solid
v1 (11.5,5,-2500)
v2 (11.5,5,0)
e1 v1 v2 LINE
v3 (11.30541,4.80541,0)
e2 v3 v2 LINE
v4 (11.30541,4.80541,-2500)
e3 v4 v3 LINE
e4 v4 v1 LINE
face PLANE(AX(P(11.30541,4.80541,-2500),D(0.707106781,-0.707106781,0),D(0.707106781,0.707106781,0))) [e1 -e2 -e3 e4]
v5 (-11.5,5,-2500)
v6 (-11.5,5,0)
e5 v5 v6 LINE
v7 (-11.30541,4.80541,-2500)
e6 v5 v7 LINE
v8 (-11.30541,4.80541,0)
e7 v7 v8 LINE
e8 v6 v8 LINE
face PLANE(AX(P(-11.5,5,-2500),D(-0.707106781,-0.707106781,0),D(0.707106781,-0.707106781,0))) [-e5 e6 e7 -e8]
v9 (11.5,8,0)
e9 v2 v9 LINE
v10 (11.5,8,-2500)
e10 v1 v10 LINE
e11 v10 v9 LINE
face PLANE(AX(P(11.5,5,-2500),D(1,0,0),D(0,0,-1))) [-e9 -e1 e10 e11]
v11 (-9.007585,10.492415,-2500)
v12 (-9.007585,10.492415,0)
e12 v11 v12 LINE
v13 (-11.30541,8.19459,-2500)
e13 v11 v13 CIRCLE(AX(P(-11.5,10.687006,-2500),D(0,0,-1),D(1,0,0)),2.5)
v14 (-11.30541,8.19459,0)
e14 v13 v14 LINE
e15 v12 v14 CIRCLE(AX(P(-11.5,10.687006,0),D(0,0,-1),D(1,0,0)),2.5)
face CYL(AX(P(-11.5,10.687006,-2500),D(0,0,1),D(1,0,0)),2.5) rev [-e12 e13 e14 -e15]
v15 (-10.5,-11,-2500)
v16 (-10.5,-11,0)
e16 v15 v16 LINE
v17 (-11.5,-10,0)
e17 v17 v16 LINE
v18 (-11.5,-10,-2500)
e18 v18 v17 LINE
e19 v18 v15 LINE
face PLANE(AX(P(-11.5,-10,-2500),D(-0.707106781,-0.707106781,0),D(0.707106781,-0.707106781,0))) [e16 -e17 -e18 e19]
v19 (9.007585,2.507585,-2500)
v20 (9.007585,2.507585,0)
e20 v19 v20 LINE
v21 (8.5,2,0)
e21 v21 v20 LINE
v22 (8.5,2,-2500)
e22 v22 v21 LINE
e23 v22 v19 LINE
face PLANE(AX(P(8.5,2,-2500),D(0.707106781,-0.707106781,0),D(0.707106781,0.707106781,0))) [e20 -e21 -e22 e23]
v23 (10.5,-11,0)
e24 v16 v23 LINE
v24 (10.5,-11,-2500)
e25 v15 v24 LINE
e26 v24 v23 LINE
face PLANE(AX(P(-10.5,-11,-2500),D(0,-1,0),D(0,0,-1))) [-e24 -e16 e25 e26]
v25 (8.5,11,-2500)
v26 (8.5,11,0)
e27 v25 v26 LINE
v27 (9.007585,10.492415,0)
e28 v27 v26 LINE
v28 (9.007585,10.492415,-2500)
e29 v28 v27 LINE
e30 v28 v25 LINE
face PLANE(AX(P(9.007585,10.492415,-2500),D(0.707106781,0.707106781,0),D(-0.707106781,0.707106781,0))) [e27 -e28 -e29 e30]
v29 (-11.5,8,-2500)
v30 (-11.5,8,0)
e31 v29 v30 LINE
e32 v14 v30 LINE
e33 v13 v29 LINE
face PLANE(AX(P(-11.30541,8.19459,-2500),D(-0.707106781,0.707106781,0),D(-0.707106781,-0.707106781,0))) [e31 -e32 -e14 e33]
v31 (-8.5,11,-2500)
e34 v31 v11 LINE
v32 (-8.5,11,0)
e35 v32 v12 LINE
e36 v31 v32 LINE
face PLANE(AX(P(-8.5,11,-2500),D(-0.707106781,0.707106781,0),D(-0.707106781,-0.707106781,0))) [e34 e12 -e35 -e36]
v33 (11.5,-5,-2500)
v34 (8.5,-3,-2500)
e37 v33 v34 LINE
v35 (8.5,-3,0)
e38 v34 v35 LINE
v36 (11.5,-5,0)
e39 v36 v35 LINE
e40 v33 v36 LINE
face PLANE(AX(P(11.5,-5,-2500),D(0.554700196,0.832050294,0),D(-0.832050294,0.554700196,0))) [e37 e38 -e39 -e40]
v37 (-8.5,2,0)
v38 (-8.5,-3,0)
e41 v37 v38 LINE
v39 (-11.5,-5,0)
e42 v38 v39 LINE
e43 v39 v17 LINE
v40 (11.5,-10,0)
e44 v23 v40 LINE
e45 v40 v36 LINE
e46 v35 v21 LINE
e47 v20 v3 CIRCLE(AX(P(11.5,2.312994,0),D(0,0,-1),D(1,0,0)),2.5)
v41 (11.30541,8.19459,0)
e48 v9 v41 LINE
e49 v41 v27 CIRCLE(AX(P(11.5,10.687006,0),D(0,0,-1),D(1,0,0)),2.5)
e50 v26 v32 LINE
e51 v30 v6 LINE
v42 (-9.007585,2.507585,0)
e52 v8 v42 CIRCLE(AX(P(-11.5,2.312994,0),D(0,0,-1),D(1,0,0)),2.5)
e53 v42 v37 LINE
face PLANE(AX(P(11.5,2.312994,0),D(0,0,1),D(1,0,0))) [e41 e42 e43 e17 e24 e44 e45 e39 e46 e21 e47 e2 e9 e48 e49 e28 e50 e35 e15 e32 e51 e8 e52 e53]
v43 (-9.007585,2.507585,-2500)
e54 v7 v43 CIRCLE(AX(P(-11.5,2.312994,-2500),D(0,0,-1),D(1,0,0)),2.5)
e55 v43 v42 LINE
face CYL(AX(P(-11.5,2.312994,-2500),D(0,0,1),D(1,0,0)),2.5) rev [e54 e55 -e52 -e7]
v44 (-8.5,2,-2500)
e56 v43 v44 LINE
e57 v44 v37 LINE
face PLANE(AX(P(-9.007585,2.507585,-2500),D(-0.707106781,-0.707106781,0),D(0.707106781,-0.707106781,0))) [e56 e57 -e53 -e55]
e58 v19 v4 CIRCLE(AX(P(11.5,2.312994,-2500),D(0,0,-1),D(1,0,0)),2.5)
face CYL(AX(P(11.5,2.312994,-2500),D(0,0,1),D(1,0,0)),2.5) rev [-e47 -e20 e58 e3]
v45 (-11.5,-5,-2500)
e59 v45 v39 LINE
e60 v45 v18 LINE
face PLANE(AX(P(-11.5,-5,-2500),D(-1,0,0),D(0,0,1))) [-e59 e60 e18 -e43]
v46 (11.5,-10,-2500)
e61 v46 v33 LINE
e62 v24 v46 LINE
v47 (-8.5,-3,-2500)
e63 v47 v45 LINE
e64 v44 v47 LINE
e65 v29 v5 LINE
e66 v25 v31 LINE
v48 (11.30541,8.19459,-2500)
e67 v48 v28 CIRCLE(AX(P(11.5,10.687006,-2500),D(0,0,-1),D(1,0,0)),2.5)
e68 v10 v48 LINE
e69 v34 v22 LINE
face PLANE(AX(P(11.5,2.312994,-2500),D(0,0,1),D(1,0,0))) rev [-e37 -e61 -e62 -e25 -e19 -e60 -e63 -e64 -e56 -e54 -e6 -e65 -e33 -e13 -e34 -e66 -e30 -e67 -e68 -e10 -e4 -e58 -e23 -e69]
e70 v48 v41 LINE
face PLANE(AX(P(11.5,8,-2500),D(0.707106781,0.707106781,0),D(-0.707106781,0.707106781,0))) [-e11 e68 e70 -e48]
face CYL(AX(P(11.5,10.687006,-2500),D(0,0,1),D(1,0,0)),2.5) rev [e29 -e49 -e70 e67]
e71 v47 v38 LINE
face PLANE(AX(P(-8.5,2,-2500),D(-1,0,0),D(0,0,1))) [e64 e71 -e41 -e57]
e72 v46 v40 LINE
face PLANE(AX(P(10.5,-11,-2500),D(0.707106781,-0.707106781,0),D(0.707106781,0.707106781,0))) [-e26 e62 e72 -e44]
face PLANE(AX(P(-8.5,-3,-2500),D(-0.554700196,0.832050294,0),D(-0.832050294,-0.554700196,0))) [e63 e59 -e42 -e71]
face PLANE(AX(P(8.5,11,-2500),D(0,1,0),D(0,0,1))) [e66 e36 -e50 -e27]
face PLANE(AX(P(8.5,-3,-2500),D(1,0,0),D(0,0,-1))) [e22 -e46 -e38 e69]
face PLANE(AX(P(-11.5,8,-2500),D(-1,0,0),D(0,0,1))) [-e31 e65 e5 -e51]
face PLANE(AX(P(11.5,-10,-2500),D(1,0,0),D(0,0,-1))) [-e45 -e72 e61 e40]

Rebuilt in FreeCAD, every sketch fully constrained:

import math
import FreeCAD as App
import Part
import Sketcher

doc = App.newDocument("Part")
body = doc.addObject("PartDesign::Body", "Body")

# Sketch on XY plane
sketch1 = body.newObject("Sketcher::SketchObject", "Sketch")
sketch1.AttachmentSupport = (doc.getObject("XY_Plane"), [""])
sketch1.MapMode = "FlatFace"
sketch1.addGeometry([
    Part.LineSegment(App.Vector(-11.5, -10, 0), App.Vector(-10.5, -11, 0)),  # 0
    Part.LineSegment(App.Vector(-10.5, -11, 0), App.Vector(10.5, -11, 0)),  # 1
    Part.LineSegment(App.Vector(10.5, -11, 0), App.Vector(11.5, -10, 0)),  # 2
    Part.LineSegment(App.Vector(11.5, -10, 0), App.Vector(11.5, -5, 0)),  # 3
    Part.LineSegment(App.Vector(11.5, -5, 0), App.Vector(8.5, -3, 0)),  # 4
    Part.LineSegment(App.Vector(8.5, -3, 0), App.Vector(8.5, 2, 0)),  # 5
    Part.LineSegment(App.Vector(8.5, 2, 0), App.Vector(9.007585, 2.507585, 0)),  # 6
    Part.ArcOfCircle(Part.Circle(App.Vector(11.5, 2.312994, 0), App.Vector(0, 0, 1), 2.5), math.radians(94.464198), math.radians(175.535802)),  # 7
    Part.LineSegment(App.Vector(11.30541, 4.80541, 0), App.Vector(11.5, 5, 0)),  # 8
    Part.LineSegment(App.Vector(11.5, 5, 0), App.Vector(11.5, 8, 0)),  # 9
    Part.LineSegment(App.Vector(11.5, 8, 0), App.Vector(11.30541, 8.19459, 0)),  # 10
    Part.ArcOfCircle(Part.Circle(App.Vector(11.5, 10.687006, 0), App.Vector(0, 0, 1), 2.5), math.radians(-175.535802), math.radians(-94.464198)),  # 11
    Part.LineSegment(App.Vector(9.007585, 10.492415, 0), App.Vector(8.5, 11, 0)),  # 12
    Part.LineSegment(App.Vector(8.5, 11, 0), App.Vector(-8.5, 11, 0)),  # 13
    Part.LineSegment(App.Vector(-8.5, 11, 0), App.Vector(-9.007585, 10.492415, 0)),  # 14
    Part.ArcOfCircle(Part.Circle(App.Vector(-11.5, 10.687006, 0), App.Vector(0, 0, 1), 2.5), math.radians(-85.535802), math.radians(-4.464198)),  # 15
    Part.LineSegment(App.Vector(-11.30541, 8.19459, 0), App.Vector(-11.5, 8, 0)),  # 16
    Part.LineSegment(App.Vector(-11.5, 8, 0), App.Vector(-11.5, 5, 0)),  # 17
    Part.LineSegment(App.Vector(-11.5, 5, 0), App.Vector(-11.30541, 4.80541, 0)),  # 18
    Part.ArcOfCircle(Part.Circle(App.Vector(-11.5, 2.312994, 0), App.Vector(0, 0, 1), 2.5), math.radians(4.464198), math.radians(85.535802)),  # 19
    Part.LineSegment(App.Vector(-9.007585, 2.507585, 0), App.Vector(-8.5, 2, 0)),  # 20
    Part.LineSegment(App.Vector(-8.5, 2, 0), App.Vector(-8.5, -3, 0)),  # 21
    Part.LineSegment(App.Vector(-8.5, -3, 0), App.Vector(-11.5, -5, 0)),  # 22
    Part.LineSegment(App.Vector(-11.5, -5, 0), App.Vector(-11.5, -10, 0)),  # 23
], False)
sketch1.addConstraint([
    Sketcher.Constraint("Coincident", 0, 2, 1, 1),
    Sketcher.Constraint("Coincident", 1, 2, 2, 1),
    Sketcher.Constraint("Coincident", 2, 2, 3, 1),
    Sketcher.Constraint("Coincident", 3, 2, 4, 1),
    Sketcher.Constraint("Coincident", 4, 2, 5, 1),
    Sketcher.Constraint("Coincident", 5, 2, 6, 1),
    Sketcher.Constraint("Coincident", 6, 2, 7, 2),
    Sketcher.Constraint("Coincident", 7, 1, 8, 1),
    Sketcher.Constraint("Coincident", 8, 2, 9, 1),
    Sketcher.Constraint("Coincident", 9, 2, 10, 1),
    Sketcher.Constraint("Coincident", 10, 2, 11, 2),
    Sketcher.Constraint("Coincident", 11, 1, 12, 1),
    Sketcher.Constraint("Coincident", 12, 2, 13, 1),
    Sketcher.Constraint("Coincident", 13, 2, 14, 1),
    Sketcher.Constraint("Coincident", 14, 2, 15, 2),
    Sketcher.Constraint("Coincident", 15, 1, 16, 1),
    Sketcher.Constraint("Coincident", 16, 2, 17, 1),
    Sketcher.Constraint("Coincident", 17, 2, 18, 1),
    Sketcher.Constraint("Coincident", 18, 2, 19, 2),
    Sketcher.Constraint("Coincident", 19, 1, 20, 1),
    Sketcher.Constraint("Coincident", 20, 2, 21, 1),
    Sketcher.Constraint("Coincident", 21, 2, 22, 1),
    Sketcher.Constraint("Coincident", 22, 2, 23, 1),
    Sketcher.Constraint("Coincident", 23, 2, 0, 1),
    Sketcher.Constraint("Horizontal", 1),
    Sketcher.Constraint("Vertical", 3),
    Sketcher.Constraint("Vertical", 5),
    Sketcher.Constraint("Vertical", 9),
    Sketcher.Constraint("Horizontal", 13),
    Sketcher.Constraint("Vertical", 17),
    Sketcher.Constraint("Vertical", 21),
    Sketcher.Constraint("Vertical", 23),
    Sketcher.Constraint("Equal", 7, 11),
    Sketcher.Constraint("Equal", 11, 15),
    Sketcher.Constraint("Equal", 15, 19),
    Sketcher.Constraint("Symmetric", 3, 2, 17, 2, -1, 1),
    Sketcher.Constraint("Symmetric", 8, 2, 22, 2, -1, 1),
    Sketcher.Constraint("Symmetric", 11, 3, 15, 3, -2),
    Sketcher.Constraint("Symmetric", 7, 3, 19, 3, -2),
    Sketcher.Constraint("Symmetric", 9, 2, 16, 2, -2),
    Sketcher.Constraint("Symmetric", 5, 2, 20, 2, -2),
    Sketcher.Constraint("Perpendicular", 0, 2),
    Sketcher.Constraint("Parallel", 2, 6),
    Sketcher.Constraint("Parallel", 6, 8),
    Sketcher.Constraint("Perpendicular", 8, 10),
    Sketcher.Constraint("Parallel", 10, 12),
    Sketcher.Constraint("Perpendicular", 12, 14),
    Sketcher.Constraint("Parallel", 14, 16),
    Sketcher.Constraint("Perpendicular", 16, 18),
    Sketcher.Constraint("Parallel", 18, 20),
    Sketcher.Constraint("Horizontal", 11, 1, 14, 2),
    Sketcher.Constraint("Horizontal", 10, 2, 15, 1),
    Sketcher.Constraint("Horizontal", 8, 2, 17, 2),
    Sketcher.Constraint("Horizontal", 4, 2, 21, 2),
    Sketcher.Constraint("Horizontal", 2, 2, 23, 2),
    Sketcher.Constraint("Vertical", 7, 3, 11, 3),
    Sketcher.Constraint("Vertical", 11, 3, 2, 2),
    Sketcher.Constraint("Vertical", 7, 1, 10, 2),
    Sketcher.Constraint("Vertical", 6, 2, 11, 1),
    Sketcher.Constraint("Vertical", 5, 2, 12, 2),
    Sketcher.Constraint("Equal", 3, 5),
    Sketcher.Constraint("Radius", 7, 2.5),
    Sketcher.Constraint("DistanceX", 1, 1, 1, 2, 21.0),
    Sketcher.Constraint("DistanceX", 13, 2, 13, 1, 17.0),
    Sketcher.Constraint("DistanceY", 3, 1, 3, 2, 5.0),
    Sketcher.Constraint("DistanceY", 9, 1, 9, 2, 3.0),
    Sketcher.Constraint("DistanceY", 0, 2, -1, 1, 11.0),
    Sketcher.Constraint("DistanceY", 2, 2, -1, 1, 10.0),
    Sketcher.Constraint("DistanceY", 4, 2, -1, 1, 3.0),
    Sketcher.Constraint("DistanceX", -1, 1, 7, 1, 11.30541),
])
pad1 = body.newObject("PartDesign::Pad", "Pad")
pad1.Profile = sketch1
pad1.Length = 2500
pad1.Reversed = True

doc.recompute()
